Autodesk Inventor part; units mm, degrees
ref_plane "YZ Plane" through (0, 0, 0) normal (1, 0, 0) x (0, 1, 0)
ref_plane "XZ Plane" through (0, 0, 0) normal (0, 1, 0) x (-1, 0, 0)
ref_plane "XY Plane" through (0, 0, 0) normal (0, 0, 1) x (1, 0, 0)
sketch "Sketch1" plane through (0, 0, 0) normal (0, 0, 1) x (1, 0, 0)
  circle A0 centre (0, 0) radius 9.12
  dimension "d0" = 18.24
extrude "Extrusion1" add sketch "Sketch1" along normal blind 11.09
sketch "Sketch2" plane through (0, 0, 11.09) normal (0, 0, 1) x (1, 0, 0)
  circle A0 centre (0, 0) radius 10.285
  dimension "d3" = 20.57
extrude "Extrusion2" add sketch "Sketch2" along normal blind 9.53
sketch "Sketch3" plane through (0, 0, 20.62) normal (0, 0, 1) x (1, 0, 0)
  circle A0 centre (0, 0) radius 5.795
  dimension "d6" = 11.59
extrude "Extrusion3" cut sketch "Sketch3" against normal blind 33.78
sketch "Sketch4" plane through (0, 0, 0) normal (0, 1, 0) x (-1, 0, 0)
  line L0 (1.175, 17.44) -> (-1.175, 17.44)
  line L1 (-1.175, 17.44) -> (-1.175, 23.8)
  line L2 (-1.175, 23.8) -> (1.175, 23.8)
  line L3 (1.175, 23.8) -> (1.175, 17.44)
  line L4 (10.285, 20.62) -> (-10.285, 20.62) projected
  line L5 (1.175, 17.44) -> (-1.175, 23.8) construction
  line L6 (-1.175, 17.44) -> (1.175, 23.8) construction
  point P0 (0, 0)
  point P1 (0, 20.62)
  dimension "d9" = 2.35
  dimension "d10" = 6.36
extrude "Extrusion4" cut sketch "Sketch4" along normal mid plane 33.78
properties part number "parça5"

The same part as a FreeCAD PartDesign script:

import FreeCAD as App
import Part
import Sketcher

doc = App.newDocument("Part")
body = doc.addObject("PartDesign::Body", "Body")

# Sketch on XY plane
sketch1 = doc.addObject("Sketcher::SketchObject", "Sketch")
body.addObject(sketch1)
sketch1.AttachmentSupport = (doc.XY_Plane, [""])
sketch1.MapMode = "FlatFace"
sketch1.addGeometry(Part.Circle(App.Vector(0, 0, 0), App.Vector(0, 0, 1), 9), False)
sketch1.addConstraint([
    Sketcher.Constraint("Coincident", 0, 3, -1, 1),
    Sketcher.Constraint("Diameter", 0, 18.24),
])
pad1 = doc.addObject("PartDesign::Pad", "Pad")
body.addObject(pad1)
pad1.Profile = sketch1
pad1.Length = 11.09

# Sketch on XY plane
sketch2 = doc.addObject("Sketcher::SketchObject", "Sketch001")
body.addObject(sketch2)
sketch2.AttachmentSupport = (doc.XY_Plane, [""])
sketch2.MapMode = "FlatFace"
sketch2.AttachmentOffset = App.Placement(App.Vector(0, 0, 11.09), App.Rotation())
sketch2.addGeometry(Part.Circle(App.Vector(0, 0, 0), App.Vector(0, 0, 1), 10), False)
sketch2.addConstraint([
    Sketcher.Constraint("Coincident", 0, 3, -1, 1),
    Sketcher.Constraint("Diameter", 0, 20.57),
])
pad2 = doc.addObject("PartDesign::Pad", "Pad001")
body.addObject(pad2)
pad2.Profile = sketch2
pad2.Length = 9.53

# Sketch on XY plane
sketch3 = doc.addObject("Sketcher::SketchObject", "Sketch002")
body.addObject(sketch3)
sketch3.AttachmentSupport = (doc.XY_Plane, [""])
sketch3.MapMode = "FlatFace"
sketch3.AttachmentOffset = App.Placement(App.Vector(0, 0, 20.62), App.Rotation())
sketch3.addGeometry(Part.Circle(App.Vector(0, 0, 0), App.Vector(0, 0, 1), 6), False)
sketch3.addConstraint([
    Sketcher.Constraint("Coincident", 0, 3, -1, 1),
    Sketcher.Constraint("Diameter", 0, 11.59),
])
pocket1 = doc.addObject("PartDesign::Pocket", "Pocket")
body.addObject(pocket1)
pocket1.Profile = sketch3
pocket1.Length = 33.78

# Sketch on XZ plane
sketch4 = doc.addObject("Sketcher::SketchObject", "Sketch003")
body.addObject(sketch4)
sketch4.AttachmentSupport = (doc.XZ_Plane, [""])
sketch4.MapMode = "FlatFace"
sketch4.addGeometry([
    Part.LineSegment(App.Vector(1.2, 17.4, 0), App.Vector(-1.2, 17.4, 0)),
    Part.LineSegment(App.Vector(-1.2, 17.4, 0), App.Vector(-1.2, 23.8, 0)),
    Part.LineSegment(App.Vector(-1.2, 23.8, 0), App.Vector(1.2, 23.8, 0)),
    Part.LineSegment(App.Vector(1.2, 23.8, 0), App.Vector(1.2, 17.4, 0)),
], False)
sketch4.addConstraint([
    Sketcher.Constraint("Coincident", 0, 2, 1, 1),
    Sketcher.Constraint("Coincident", 1, 2, 2, 1),
    Sketcher.Constraint("Coincident", 2, 2, 3, 1),
    Sketcher.Constraint("Coincident", 3, 2, 0, 1),
    Sketcher.Constraint("Horizontal", 0),
    Sketcher.Constraint("Vertical", 1),
    Sketcher.Constraint("Horizontal", 2),
    Sketcher.Constraint("Vertical", 3),
    Sketcher.Constraint("DistanceX", 0, 2, 0, 1, 2.35),
    Sketcher.Constraint("DistanceY", 1, 1, 1, 2, 6.36),
    Sketcher.Constraint("DistanceY", -1, 1, 1, 2, 23.8),
    Sketcher.Constraint("DistanceX", 0, 2, -1, 1, 1.175),
])
pocket2 = doc.addObject("PartDesign::Pocket", "Pocket001")
body.addObject(pocket2)
pocket2.Profile = sketch4
pocket2.Length = 33.78
pocket2.Midplane = True

doc.recompute()
